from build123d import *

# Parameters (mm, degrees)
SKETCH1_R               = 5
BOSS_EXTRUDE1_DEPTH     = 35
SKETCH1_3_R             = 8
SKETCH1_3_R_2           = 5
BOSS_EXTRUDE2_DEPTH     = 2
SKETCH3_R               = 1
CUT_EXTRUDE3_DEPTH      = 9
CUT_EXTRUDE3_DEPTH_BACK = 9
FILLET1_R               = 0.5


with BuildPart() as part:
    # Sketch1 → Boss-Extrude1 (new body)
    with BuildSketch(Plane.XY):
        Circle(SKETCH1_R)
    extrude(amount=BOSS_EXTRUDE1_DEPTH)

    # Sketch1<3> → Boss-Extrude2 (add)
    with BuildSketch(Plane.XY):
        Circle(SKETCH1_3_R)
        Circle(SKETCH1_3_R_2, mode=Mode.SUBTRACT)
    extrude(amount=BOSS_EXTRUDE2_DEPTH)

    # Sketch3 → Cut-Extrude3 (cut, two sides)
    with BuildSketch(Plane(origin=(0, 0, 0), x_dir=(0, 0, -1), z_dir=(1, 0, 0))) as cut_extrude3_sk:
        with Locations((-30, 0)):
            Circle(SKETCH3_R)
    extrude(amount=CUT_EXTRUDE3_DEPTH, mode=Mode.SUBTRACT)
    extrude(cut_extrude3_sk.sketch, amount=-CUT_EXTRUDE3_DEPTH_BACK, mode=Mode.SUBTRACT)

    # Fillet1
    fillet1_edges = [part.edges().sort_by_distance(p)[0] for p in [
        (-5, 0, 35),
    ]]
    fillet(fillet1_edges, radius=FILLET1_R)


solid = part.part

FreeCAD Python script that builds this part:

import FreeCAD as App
import Part
import Sketcher

V = App.Vector
Q = App.Units.Quantity


def edges_at(feature, points):
    """Names of the edges that pass closest to the given points."""
    edges = feature.Shape.Edges
    near = lambda p: min(range(len(edges)), key=lambda i: edges[i].distToShape(Part.Vertex(*p))[0])
    return sorted({f"Edge{near(p) + 1}" for p in points})

doc = App.newDocument("Part")
body = doc.addObject("PartDesign::Body", "Body")

sketch1 = body.newObject("Sketcher::SketchObject", "Sketch")
sketch1.AttachmentSupport = (doc.getObject("XY_Plane"), [""])
sketch1.MapMode = "FlatFace"
sketch1.addGeometry(Part.Circle(V(0, 0, 0), V(0, 0, 1), 5), False)
sketch1.addConstraint([
    Sketcher.Constraint("Coincident", 0, 3, -1, 1),
    Sketcher.Constraint("Diameter", 0, Q("10 mm")),
])
pad1 = body.newObject("PartDesign::Pad", "Pad")
pad1.Profile = sketch1
pad1.Length = 35

sketch2 = body.newObject("Sketcher::SketchObject", "Sketch001")
sketch2.AttachmentSupport = (doc.getObject("XY_Plane"), [""])
sketch2.MapMode = "FlatFace"
sketch2.addGeometry([
    Part.Circle(V(0, 0, 0), V(0, 0, 1), 8),
    Part.Circle(V(0, 0, 0), V(0, 0, 1), 5),
], False)
sketch2.addConstraint([
    Sketcher.Constraint("Coincident", 0, 3, -1, 1),
    Sketcher.Constraint("Coincident", 1, 3, -1, 1),
    Sketcher.Constraint("Diameter", 0, Q("16 mm")),
    Sketcher.Constraint("Diameter", 1, Q("10 mm")),
])
pad2 = body.newObject("PartDesign::Pad", "Pad001")
pad2.Profile = sketch2
pad2.Length = 2

sketch3 = body.newObject("Sketcher::SketchObject", "Sketch002")
sketch3.AttachmentSupport = (doc.getObject("YZ_Plane"), [""])
sketch3.MapMode = "FlatFace"
sketch3.addGeometry(Part.Circle(V(0, 30, 0), V(0, 0, 1), 1), False)
sketch3.addConstraint([
    Sketcher.Constraint("PointOnObject", 0, 3, -2),
    Sketcher.Constraint("Diameter", 0, Q("2 mm")),
    Sketcher.Constraint("DistanceY", -1, 1, 0, 3, Q("30 mm")),
])
pocket1 = body.newObject("PartDesign::Pocket", "Pocket")
pocket1.Profile = sketch3
pocket1.Type = "ThroughAll"
pocket1.Midplane = True
doc.recompute()

fillet = body.newObject("PartDesign::Fillet", "Fillet")
fillet.Base = (pocket1, edges_at(pocket1, [(-5, 0, 35)]))
fillet.Radius = 0.5

doc.recompute()
